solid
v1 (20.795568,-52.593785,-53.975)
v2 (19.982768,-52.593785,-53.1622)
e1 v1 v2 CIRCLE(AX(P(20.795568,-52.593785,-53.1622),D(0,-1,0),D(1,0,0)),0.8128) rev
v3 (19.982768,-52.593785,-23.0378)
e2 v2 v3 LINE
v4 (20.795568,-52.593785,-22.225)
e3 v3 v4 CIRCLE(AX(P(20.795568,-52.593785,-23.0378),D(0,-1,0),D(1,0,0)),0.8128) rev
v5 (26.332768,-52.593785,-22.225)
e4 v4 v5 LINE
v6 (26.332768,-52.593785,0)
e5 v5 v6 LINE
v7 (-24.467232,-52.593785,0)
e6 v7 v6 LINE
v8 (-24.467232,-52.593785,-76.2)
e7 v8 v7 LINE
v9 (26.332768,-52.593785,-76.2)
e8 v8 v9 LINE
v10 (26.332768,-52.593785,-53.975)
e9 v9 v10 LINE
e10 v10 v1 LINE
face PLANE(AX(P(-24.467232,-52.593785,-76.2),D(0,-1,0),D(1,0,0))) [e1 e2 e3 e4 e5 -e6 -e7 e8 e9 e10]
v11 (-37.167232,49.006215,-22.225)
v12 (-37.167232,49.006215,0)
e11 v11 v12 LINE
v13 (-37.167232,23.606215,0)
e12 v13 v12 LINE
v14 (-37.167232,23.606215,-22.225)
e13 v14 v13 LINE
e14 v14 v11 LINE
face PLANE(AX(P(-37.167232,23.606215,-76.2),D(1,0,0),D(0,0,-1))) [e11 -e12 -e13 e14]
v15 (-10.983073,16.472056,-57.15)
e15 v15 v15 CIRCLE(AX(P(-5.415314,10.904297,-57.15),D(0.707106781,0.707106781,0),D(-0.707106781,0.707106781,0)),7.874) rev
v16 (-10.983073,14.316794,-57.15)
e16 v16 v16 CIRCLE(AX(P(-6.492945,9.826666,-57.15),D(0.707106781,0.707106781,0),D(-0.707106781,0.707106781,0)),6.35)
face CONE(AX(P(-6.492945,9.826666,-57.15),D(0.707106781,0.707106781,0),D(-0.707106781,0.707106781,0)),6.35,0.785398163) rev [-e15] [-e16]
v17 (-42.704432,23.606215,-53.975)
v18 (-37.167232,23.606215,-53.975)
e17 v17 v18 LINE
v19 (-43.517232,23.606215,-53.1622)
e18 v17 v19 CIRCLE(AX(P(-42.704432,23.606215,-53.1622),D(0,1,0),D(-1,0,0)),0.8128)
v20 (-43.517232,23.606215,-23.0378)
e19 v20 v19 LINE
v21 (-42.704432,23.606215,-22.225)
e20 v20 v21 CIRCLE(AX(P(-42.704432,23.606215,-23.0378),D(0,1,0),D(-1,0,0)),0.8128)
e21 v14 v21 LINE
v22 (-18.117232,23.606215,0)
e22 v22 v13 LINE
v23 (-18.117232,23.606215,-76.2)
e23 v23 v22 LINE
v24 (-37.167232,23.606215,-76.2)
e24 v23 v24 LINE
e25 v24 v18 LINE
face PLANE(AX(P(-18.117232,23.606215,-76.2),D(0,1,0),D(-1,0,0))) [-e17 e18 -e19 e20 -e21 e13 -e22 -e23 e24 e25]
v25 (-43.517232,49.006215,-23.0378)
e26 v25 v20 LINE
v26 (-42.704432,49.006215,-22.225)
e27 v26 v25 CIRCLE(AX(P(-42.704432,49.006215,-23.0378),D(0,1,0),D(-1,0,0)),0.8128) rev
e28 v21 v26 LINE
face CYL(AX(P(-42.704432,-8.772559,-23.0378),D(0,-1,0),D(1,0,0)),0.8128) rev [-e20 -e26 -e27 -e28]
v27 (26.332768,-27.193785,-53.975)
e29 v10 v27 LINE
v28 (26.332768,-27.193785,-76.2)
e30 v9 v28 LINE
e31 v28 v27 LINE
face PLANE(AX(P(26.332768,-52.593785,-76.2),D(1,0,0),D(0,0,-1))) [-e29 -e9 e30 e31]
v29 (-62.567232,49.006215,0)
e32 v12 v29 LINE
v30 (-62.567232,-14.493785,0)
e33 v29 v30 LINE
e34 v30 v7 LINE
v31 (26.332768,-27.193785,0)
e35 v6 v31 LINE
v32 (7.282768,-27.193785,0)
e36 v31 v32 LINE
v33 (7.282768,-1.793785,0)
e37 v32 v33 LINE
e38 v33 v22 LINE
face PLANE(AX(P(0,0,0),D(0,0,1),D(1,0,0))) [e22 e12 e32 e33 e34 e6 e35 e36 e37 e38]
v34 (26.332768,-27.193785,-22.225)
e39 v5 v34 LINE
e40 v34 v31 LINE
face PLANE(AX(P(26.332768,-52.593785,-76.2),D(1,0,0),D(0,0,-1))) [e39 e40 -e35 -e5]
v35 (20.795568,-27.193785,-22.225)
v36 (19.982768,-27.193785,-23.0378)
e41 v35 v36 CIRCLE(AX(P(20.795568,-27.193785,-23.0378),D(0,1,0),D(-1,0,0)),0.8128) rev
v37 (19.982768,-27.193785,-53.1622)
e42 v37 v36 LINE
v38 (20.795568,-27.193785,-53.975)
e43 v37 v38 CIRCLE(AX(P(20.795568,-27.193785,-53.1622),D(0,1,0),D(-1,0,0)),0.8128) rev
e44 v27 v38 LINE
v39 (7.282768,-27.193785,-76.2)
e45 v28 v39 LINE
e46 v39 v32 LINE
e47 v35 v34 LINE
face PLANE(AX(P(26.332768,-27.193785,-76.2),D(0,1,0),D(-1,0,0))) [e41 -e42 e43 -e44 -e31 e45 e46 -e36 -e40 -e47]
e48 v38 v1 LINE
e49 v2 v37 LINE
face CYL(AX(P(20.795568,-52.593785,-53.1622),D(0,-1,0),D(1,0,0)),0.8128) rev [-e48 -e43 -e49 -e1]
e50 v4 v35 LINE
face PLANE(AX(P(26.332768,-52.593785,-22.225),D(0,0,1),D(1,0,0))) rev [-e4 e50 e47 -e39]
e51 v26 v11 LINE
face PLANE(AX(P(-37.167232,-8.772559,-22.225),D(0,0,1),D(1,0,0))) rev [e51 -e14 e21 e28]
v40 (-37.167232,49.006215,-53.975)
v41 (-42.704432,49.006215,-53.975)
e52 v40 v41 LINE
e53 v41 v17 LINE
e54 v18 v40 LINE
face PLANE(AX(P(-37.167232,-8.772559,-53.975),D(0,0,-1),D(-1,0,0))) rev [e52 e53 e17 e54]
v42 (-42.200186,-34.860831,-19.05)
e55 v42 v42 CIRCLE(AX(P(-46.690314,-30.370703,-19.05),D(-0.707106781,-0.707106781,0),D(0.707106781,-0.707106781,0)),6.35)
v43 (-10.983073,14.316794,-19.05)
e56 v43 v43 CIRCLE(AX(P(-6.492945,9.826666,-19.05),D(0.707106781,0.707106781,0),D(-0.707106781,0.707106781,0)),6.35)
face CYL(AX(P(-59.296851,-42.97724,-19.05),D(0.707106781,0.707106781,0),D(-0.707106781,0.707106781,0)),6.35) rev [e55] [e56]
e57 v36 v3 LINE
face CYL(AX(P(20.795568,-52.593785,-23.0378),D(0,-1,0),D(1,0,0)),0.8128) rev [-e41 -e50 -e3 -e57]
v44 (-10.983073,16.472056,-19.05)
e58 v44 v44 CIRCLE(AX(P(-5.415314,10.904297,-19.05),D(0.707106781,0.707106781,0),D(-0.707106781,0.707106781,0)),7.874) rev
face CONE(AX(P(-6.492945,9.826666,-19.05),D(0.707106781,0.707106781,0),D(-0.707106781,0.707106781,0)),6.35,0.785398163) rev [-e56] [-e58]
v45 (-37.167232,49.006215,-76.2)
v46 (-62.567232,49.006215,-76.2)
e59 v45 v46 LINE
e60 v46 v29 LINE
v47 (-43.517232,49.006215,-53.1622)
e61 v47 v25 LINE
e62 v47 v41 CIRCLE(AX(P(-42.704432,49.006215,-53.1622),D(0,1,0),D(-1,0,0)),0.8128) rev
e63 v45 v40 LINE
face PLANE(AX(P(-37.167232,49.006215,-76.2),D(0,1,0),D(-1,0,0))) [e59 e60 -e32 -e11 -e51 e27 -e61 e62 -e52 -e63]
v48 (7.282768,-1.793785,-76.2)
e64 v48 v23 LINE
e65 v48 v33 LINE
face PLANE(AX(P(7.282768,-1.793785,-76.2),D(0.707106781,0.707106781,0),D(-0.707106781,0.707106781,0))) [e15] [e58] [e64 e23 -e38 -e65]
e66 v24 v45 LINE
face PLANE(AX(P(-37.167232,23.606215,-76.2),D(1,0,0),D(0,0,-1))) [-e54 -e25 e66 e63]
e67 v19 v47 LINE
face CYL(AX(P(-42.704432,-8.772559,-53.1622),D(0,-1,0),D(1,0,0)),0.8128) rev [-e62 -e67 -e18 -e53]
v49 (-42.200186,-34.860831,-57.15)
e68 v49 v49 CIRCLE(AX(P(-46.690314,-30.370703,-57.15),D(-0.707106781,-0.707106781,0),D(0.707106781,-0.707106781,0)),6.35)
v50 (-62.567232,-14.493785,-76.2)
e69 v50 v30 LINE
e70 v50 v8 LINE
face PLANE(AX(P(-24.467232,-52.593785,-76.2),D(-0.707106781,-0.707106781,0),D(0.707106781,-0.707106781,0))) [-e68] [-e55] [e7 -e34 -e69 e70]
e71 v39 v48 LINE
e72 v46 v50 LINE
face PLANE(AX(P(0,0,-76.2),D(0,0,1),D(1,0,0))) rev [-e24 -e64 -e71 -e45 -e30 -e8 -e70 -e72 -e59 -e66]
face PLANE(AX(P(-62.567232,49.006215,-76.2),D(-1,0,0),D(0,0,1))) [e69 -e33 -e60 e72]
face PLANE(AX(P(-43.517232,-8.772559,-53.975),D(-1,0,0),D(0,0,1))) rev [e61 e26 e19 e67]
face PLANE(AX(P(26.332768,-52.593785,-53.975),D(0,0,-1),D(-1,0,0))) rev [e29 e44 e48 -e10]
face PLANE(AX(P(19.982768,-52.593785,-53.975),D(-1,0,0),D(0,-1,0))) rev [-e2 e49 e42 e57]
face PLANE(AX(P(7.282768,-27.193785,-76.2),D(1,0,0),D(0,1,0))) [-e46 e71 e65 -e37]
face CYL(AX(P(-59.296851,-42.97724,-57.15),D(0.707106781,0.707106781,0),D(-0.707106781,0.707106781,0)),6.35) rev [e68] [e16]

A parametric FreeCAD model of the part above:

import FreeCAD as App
import Part
import Sketcher
Q = App.Units.Quantity


def edges_at(feature, points):
    """Names of the edges that pass closest to the given points."""
    edges = feature.Shape.Edges
    near = lambda p: min(range(len(edges)), key=lambda i: edges[i].distToShape(Part.Vertex(*p))[0])
    return sorted({f"Edge{near(p) + 1}" for p in points})


def add_polygon(sketch, points):
    """Adds a closed chain of lines whose ends are joined by coincident constraints."""
    first, n = sketch.GeometryCount, len(points)
    for a, b in zip(points, points[1:] + points[:1]):
        sketch.addGeometry(Part.LineSegment(App.Vector(*a, 0), App.Vector(*b, 0)), False)
    for i in range(n):
        sketch.addConstraint(Sketcher.Constraint("Coincident", first + i, 2, first + (i + 1) % n, 1))

doc = App.newDocument("Part")
params = doc.addObject("Spreadsheet::Sheet", "Params")
for row, (alias, value) in enumerate([
    ("sketch1_width", "2 in"),
    ("sketch1_width2", "1 in"),
    ("sketch1_height", "2.5 in"),
    ("pad1_length", "3 in"),
    ("sketch2_width", "0.25 in"),
    ("sketch2_height", "1.25 in"),
    ("pocket1_length", "1 in"),
    ("fillet_radius", "0.032 in"),
    ("sketch3_diameter", "0.5 in"),
    ("pocket2_length", "3 in"),
    ("chamfer_size", "0.06 in"),
    ("sketch4_width", "0.25 in"),
    ("sketch4_height", "1.25 in"),
    ("fillet2_radius", "0.032 in"),
], start=1):
    params.set(f"A{row}", alias)
    params.set(f"B{row}", "=" + value)
    params.setAlias(f"B{row}", alias)

body = doc.addObject("PartDesign::Body", "Body")

# Sketch on XY plane
sketch1 = body.newObject("Sketcher::SketchObject", "Sketch")
sketch1.AttachmentSupport = (doc.getObject("XY_Plane"), [""])
sketch1.MapMode = "FlatFace"
add_polygon(sketch1, [(-63, 49), (-63, -14), (-24, -53), (26, -53), (26, -27), (7, -27), (7, -2), (-18, 24), (-37, 24), (-37, 49)])  # lines 0-9
sketch1.addConstraint(Sketcher.Constraint("Vertical", 0))
sketch1.addConstraint(Sketcher.Constraint("Horizontal", 2))
sketch1.addConstraint(Sketcher.Constraint("Vertical", 3))
sketch1.addConstraint(Sketcher.Constraint("Horizontal", 4))
sketch1.addConstraint(Sketcher.Constraint("Vertical", 5))
sketch1.addConstraint(Sketcher.Constraint("Horizontal", 7))
sketch1.addConstraint(Sketcher.Constraint("Vertical", 8))
sketch1.addConstraint(Sketcher.Constraint("Horizontal", 9))
sketch1.addConstraint(Sketcher.Constraint("Parallel", 1, 6))
sketch1.addConstraint(Sketcher.Constraint("Equal", 4, 7))
sketch1.addConstraint(Sketcher.Constraint("Equal", 9, 3))
sketch1.addConstraint(Sketcher.Constraint("Equal", 3, 5))
sketch1.addConstraint(Sketcher.Constraint("Equal", 5, 8))
sketch1.addConstraint(Sketcher.Constraint("DistanceX", 2, 1, 2, 2, Q("2 in")))
sketch1.addConstraint(Sketcher.Constraint("DistanceX", 9, 2, 9, 1, Q("1 in")))
sketch1.addConstraint(Sketcher.Constraint("DistanceY", 0, 2, 0, 1, Q("2.5 in")))
sketch1.addConstraint(Sketcher.Constraint("Angle", 1, Q("-45 deg")))
sketch1.addConstraint(Sketcher.Constraint("DistanceX", 6, 2, 5, 2, Q("1 in")))
sketch1.addConstraint(Sketcher.Constraint("DistanceX", 0, 2, -1, 1, 62.567232))
sketch1.addConstraint(Sketcher.Constraint("DistanceY", 0, 2, -1, 1, 14.493785))
sketch1.setExpression("Constraints[23]", "Params.sketch1_width")
sketch1.setExpression("Constraints[24]", "Params.sketch1_width2")
sketch1.setExpression("Constraints[25]", "Params.sketch1_height")
pad1 = body.newObject("PartDesign::Pad", "Pad")
pad1.Profile = sketch1
pad1.setExpression("Length", "Params.pad1_length")
pad1.Reversed = True

# Sketch on XZ plane
sketch2 = body.newObject("Sketcher::SketchObject", "Sketch001")
sketch2.AttachmentSupport = (doc.getObject("XZ_Plane"), [""])
sketch2.MapMode = "FlatFace"
sketch2.AttachmentOffset = App.Placement(App.Vector(0, 0, -49.006215), App.Rotation())
add_polygon(sketch2, [(-44, -54), (-44, -22), (-37, -22), (-37, -54)])  # lines 0-3
sketch2.addConstraint(Sketcher.Constraint("Vertical", 0))
sketch2.addConstraint(Sketcher.Constraint("Horizontal", 1))
sketch2.addConstraint(Sketcher.Constraint("Vertical", 2))
sketch2.addConstraint(Sketcher.Constraint("Horizontal", 3))
sketch2.addConstraint(Sketcher.Constraint("DistanceX", 1, 1, 1, 2, Q("0.25 in")))
sketch2.addConstraint(Sketcher.Constraint("DistanceY", 0, 1, 0, 2, Q("1.25 in")))
sketch2.addConstraint(Sketcher.Constraint("DistanceY", 0, 2, -1, 1, Q("0.875 in")))
sketch2.addConstraint(Sketcher.Constraint("DistanceX", 0, 2, -1, 1, 43.517232))
sketch2.setExpression("Constraints[8]", "Params.sketch2_width")
sketch2.setExpression("Constraints[9]", "Params.sketch2_height")
pocket1 = body.newObject("PartDesign::Pocket", "Pocket")
pocket1.Profile = sketch2
pocket1.setExpression("Length", "Params.pocket1_length")
pocket1.Reversed = True
doc.recompute()

fillet = body.newObject("PartDesign::Fillet", "Fillet")
fillet.Base = (pocket1, edges_at(pocket1, [(-43.517, 36.306, -22.225), (-43.517, 36.306, -53.975)]))
fillet.setExpression("Radius", "Params.fillet_radius")

# Sketch on an angled plane
sketch3 = body.newObject("Sketcher::SketchObject", "Sketch002")
sketch3.Placement = App.Placement(App.Vector(2.744492, 2.744492, 0), App.Rotation(App.Vector(0, 0, -1), App.Vector(-0.707106781, 0.707106781, 0), App.Vector(0.707106781, 0.707106781, 0), "ZXY"))
sketch3.addGeometry(Part.Circle(App.Vector(57, 12, 0), App.Vector(0, 0, 1), 6), False)
sketch3.addGeometry(Part.Circle(App.Vector(19, 12, 0), App.Vector(0, 0, 1), 6), False)
sketch3.addConstraint(Sketcher.Constraint("Equal", 0, 1))
sketch3.addConstraint(Sketcher.Constraint("Horizontal", 0, 3, 1, 3))
sketch3.addConstraint(Sketcher.Constraint("Diameter", 0, Q("0.5 in")))
sketch3.addConstraint(Sketcher.Constraint("DistanceX", 1, 3, 0, 3, Q("1.5 in")))
sketch3.addConstraint(Sketcher.Constraint("DistanceX", -1, 1, 0, 3, Q("2.25 in")))
sketch3.addConstraint(Sketcher.Constraint("DistanceY", -1, 1, 0, 3, 11.539707))
sketch3.setExpression("Constraints[2]", "Params.sketch3_diameter")
pocket2 = body.newObject("PartDesign::Pocket", "Pocket001")
pocket2.Profile = sketch3
pocket2.setExpression("Length", "Params.pocket2_length")
doc.recompute()

chamfer = body.newObject("PartDesign::Chamfer", "Chamfer")
chamfer.Base = (pocket2, edges_at(pocket2, [(-0.925, 6.414, -19.05), (-0.925, 6.414, -57.15)]))
chamfer.setExpression("Size", "Params.chamfer_size")

# Sketch on XZ plane
sketch4 = body.newObject("Sketcher::SketchObject", "Sketch003")
sketch4.AttachmentSupport = (doc.getObject("XZ_Plane"), [""])
sketch4.MapMode = "FlatFace"
sketch4.AttachmentOffset = App.Placement(App.Vector(0, 0, 27.193785), App.Rotation())
add_polygon(sketch4, [(20, -54), (20, -22), (26, -22), (26, -54)])  # lines 0-3
sketch4.addConstraint(Sketcher.Constraint("Vertical", 0))
sketch4.addConstraint(Sketcher.Constraint("Horizontal", 1))
sketch4.addConstraint(Sketcher.Constraint("Vertical", 2))
sketch4.addConstraint(Sketcher.Constraint("Horizontal", 3))
sketch4.addConstraint(Sketcher.Constraint("DistanceX", 1, 1, 1, 2, Q("0.25 in")))
sketch4.addConstraint(Sketcher.Constraint("DistanceY", 0, 1, 0, 2, Q("1.25 in")))
sketch4.addConstraint(Sketcher.Constraint("DistanceY", 0, 2, -1, 1, Q("0.875 in")))
sketch4.addConstraint(Sketcher.Constraint("DistanceX", -1, 1, 0, 2, 19.982768))
sketch4.setExpression("Constraints[8]", "Params.sketch4_width")
sketch4.setExpression("Constraints[9]", "Params.sketch4_height")
pocket3 = body.newObject("PartDesign::Pocket", "Pocket002")
pocket3.Profile = sketch4
pocket3.Type = "ThroughAll"
pocket3.Reversed = True
doc.recompute()

fillet2 = body.newObject("PartDesign::Fillet", "Fillet001")
fillet2.Base = (pocket3, edges_at(pocket3, [(19.983, -39.894, -22.225), (19.983, -39.894, -53.975)]))
fillet2.setExpression("Radius", "Params.fillet2_radius")

doc.recompute()
